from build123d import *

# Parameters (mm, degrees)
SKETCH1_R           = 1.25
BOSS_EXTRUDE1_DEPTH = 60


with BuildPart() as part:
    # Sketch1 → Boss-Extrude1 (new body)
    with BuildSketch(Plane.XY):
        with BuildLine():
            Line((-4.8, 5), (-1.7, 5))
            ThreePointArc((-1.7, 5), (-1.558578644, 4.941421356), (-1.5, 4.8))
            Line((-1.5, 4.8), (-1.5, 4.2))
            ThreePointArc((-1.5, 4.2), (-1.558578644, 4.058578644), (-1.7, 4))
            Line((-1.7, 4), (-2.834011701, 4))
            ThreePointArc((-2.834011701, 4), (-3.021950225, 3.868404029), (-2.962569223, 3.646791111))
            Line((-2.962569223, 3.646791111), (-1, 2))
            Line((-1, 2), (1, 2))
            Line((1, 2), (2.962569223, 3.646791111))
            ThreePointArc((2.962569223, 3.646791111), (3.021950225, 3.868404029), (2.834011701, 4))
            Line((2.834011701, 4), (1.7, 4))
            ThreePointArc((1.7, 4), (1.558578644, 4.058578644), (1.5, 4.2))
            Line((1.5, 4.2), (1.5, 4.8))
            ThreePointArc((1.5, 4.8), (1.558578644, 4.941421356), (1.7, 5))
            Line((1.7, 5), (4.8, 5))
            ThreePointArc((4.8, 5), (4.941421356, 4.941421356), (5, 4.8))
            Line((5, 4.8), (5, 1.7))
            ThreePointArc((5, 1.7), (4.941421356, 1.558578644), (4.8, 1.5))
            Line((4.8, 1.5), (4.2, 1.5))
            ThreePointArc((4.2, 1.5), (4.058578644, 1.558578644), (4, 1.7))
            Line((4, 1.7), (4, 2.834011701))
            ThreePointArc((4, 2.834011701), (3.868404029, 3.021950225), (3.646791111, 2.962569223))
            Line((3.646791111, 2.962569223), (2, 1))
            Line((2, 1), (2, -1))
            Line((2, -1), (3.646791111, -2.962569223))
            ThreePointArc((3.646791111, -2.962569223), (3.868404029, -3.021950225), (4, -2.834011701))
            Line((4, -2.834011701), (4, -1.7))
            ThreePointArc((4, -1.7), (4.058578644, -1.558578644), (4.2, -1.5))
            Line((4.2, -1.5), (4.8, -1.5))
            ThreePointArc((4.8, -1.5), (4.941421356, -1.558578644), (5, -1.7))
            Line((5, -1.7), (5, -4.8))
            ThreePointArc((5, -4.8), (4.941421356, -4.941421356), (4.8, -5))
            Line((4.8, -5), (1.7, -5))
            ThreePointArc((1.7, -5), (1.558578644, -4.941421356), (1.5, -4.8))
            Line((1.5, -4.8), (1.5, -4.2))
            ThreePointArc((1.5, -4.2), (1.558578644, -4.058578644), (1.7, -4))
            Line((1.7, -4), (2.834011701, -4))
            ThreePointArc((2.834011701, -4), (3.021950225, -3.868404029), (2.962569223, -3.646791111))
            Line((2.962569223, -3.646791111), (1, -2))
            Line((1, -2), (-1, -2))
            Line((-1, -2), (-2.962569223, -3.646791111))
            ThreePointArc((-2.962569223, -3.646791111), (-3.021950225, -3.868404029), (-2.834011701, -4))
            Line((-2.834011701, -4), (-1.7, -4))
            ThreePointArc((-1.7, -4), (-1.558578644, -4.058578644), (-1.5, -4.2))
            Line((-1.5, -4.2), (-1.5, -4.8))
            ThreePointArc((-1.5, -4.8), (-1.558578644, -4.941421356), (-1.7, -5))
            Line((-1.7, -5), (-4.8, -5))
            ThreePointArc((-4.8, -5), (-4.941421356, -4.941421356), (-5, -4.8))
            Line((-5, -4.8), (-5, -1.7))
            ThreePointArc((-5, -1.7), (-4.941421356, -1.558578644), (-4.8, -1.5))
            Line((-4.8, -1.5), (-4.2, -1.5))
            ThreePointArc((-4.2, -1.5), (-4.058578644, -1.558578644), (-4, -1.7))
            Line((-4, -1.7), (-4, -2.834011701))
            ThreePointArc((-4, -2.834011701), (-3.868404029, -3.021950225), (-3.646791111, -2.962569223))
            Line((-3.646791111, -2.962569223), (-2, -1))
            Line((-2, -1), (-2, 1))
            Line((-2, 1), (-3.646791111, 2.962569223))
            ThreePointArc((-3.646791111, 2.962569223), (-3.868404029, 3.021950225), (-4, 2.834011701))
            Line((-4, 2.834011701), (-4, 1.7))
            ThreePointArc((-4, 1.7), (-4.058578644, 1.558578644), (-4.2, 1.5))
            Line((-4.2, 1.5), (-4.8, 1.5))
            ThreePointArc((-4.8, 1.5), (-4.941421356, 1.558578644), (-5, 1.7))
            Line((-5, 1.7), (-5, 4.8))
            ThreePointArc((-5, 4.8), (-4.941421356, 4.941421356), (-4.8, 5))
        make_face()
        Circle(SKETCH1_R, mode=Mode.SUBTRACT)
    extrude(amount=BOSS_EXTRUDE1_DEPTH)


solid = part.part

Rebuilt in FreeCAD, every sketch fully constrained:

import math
import FreeCAD as App
import Part
import Sketcher
from FreeCAD import Vector
Q = App.Units.Quantity

doc = App.newDocument("Part")
body = doc.addObject("PartDesign::Body", "Body")

# Sketch on XY plane
sketch1 = body.newObject("Sketcher::SketchObject", "Sketch")
sketch1.AttachmentSupport = (doc.getObject("XY_Plane"), [""])
sketch1.MapMode = "FlatFace"
sketch1.addGeometry([
    Part.LineSegment(Vector(-1.7, 5, 0), Vector(-4.8, 5, 0)),  # 0
    Part.ArcOfCircle(Part.Circle(Vector(-4.8, 4.8, 0), Vector(0, 0, 1), 0.2), math.radians(90), math.radians(180)),  # 1
    Part.LineSegment(Vector(-5, 4.8, 0), Vector(-5, 1.7, 0)),  # 2
    Part.ArcOfCircle(Part.Circle(Vector(-4.8, 1.7, 0), Vector(0, 0, 1), 0.2), math.radians(-180), math.radians(-90)),  # 3
    Part.LineSegment(Vector(-4.8, 1.5, 0), Vector(-4.2, 1.5, 0)),  # 4
    Part.ArcOfCircle(Part.Circle(Vector(-4.2, 1.7, 0), Vector(0, 0, 1), 0.2), math.radians(-90), math.radians(0)),  # 5
    Part.LineSegment(Vector(-4, 1.7, 0), Vector(-4, 2.83, 0)),  # 6
    Part.ArcOfCircle(Part.Circle(Vector(-3.8, 2.83, 0), Vector(0, 0, 1), 0.2), math.radians(40), math.radians(180)),  # 7
    Part.LineSegment(Vector(-3.65, 2.96, 0), Vector(-2, 1, 0)),  # 8
    Part.LineSegment(Vector(-2, 1, 0), Vector(-2, -1, 0)),  # 9
    Part.LineSegment(Vector(-2, -1, 0), Vector(-3.65, -2.96, 0)),  # 10
    Part.ArcOfCircle(Part.Circle(Vector(-3.8, -2.83, 0), Vector(0, 0, 1), 0.2), math.radians(180), math.radians(320)),  # 11
    Part.LineSegment(Vector(-4, -2.83, 0), Vector(-4, -1.7, 0)),  # 12
    Part.ArcOfCircle(Part.Circle(Vector(-4.2, -1.7, 0), Vector(0, 0, 1), 0.2), math.radians(0), math.radians(90)),  # 13
    Part.LineSegment(Vector(-4.2, -1.5, 0), Vector(-4.8, -1.5, 0)),  # 14
    Part.ArcOfCircle(Part.Circle(Vector(-4.8, -1.7, 0), Vector(0, 0, 1), 0.2), math.radians(90), math.radians(180)),  # 15
    Part.LineSegment(Vector(-5, -1.7, 0), Vector(-5, -4.8, 0)),  # 16
    Part.ArcOfCircle(Part.Circle(Vector(-4.8, -4.8, 0), Vector(0, 0, 1), 0.2), math.radians(-180), math.radians(-90)),  # 17
    Part.LineSegment(Vector(-4.8, -5, 0), Vector(-1.7, -5, 0)),  # 18
    Part.ArcOfCircle(Part.Circle(Vector(-1.7, -4.8, 0), Vector(0, 0, 1), 0.2), math.radians(-90), math.radians(0)),  # 19
    Part.LineSegment(Vector(-1.5, -4.8, 0), Vector(-1.5, -4.2, 0)),  # 20
    Part.ArcOfCircle(Part.Circle(Vector(-1.7, -4.2, 0), Vector(0, 0, 1), 0.2), math.radians(0), math.radians(90)),  # 21
    Part.LineSegment(Vector(-1.7, -4, 0), Vector(-2.83, -4, 0)),  # 22
    Part.ArcOfCircle(Part.Circle(Vector(-2.83, -3.8, 0), Vector(0, 0, 1), 0.2), math.radians(130), math.radians(270)),  # 23
    Part.LineSegment(Vector(-2.96, -3.65, 0), Vector(-1, -2, 0)),  # 24
    Part.LineSegment(Vector(-1, -2, 0), Vector(1, -2, 0)),  # 25
    Part.LineSegment(Vector(1, -2, 0), Vector(2.96, -3.65, 0)),  # 26
    Part.ArcOfCircle(Part.Circle(Vector(2.83, -3.8, 0), Vector(0, 0, 1), 0.2), math.radians(-90), math.radians(50)),  # 27
    Part.LineSegment(Vector(2.83, -4, 0), Vector(1.7, -4, 0)),  # 28
    Part.ArcOfCircle(Part.Circle(Vector(1.7, -4.2, 0), Vector(0, 0, 1), 0.2), math.radians(90), math.radians(180)),  # 29
    Part.LineSegment(Vector(1.5, -4.2, 0), Vector(1.5, -4.8, 0)),  # 30
    Part.ArcOfCircle(Part.Circle(Vector(1.7, -4.8, 0), Vector(0, 0, 1), 0.2), math.radians(-180), math.radians(-90)),  # 31
    Part.LineSegment(Vector(1.7, -5, 0), Vector(4.8, -5, 0)),  # 32
    Part.ArcOfCircle(Part.Circle(Vector(4.8, -4.8, 0), Vector(0, 0, 1), 0.2), math.radians(-90), math.radians(0)),  # 33
    Part.LineSegment(Vector(5, -4.8, 0), Vector(5, -1.7, 0)),  # 34
    Part.ArcOfCircle(Part.Circle(Vector(4.8, -1.7, 0), Vector(0, 0, 1), 0.2), math.radians(0), math.radians(90)),  # 35
    Part.LineSegment(Vector(4.8, -1.5, 0), Vector(4.2, -1.5, 0)),  # 36
    Part.ArcOfCircle(Part.Circle(Vector(4.2, -1.7, 0), Vector(0, 0, 1), 0.2), math.radians(90), math.radians(180)),  # 37
    Part.LineSegment(Vector(4, -1.7, 0), Vector(4, -2.83, 0)),  # 38
    Part.ArcOfCircle(Part.Circle(Vector(3.8, -2.83, 0), Vector(0, 0, 1), 0.2), math.radians(-140), math.radians(0)),  # 39
    Part.LineSegment(Vector(3.65, -2.96, 0), Vector(2, -1, 0)),  # 40
    Part.LineSegment(Vector(2, -1, 0), Vector(2, 1, 0)),  # 41
    Part.LineSegment(Vector(2, 1, 0), Vector(3.65, 2.96, 0)),  # 42
    Part.ArcOfCircle(Part.Circle(Vector(3.8, 2.83, 0), Vector(0, 0, 1), 0.2), math.radians(0), math.radians(140)),  # 43
    Part.LineSegment(Vector(4, 2.83, 0), Vector(4, 1.7, 0)),  # 44
    Part.ArcOfCircle(Part.Circle(Vector(4.2, 1.7, 0), Vector(0, 0, 1), 0.2), math.radians(-180), math.radians(-90)),  # 45
    Part.LineSegment(Vector(4.2, 1.5, 0), Vector(4.8, 1.5, 0)),  # 46
    Part.ArcOfCircle(Part.Circle(Vector(4.8, 1.7, 0), Vector(0, 0, 1), 0.2), math.radians(-90), math.radians(0)),  # 47
    Part.LineSegment(Vector(5, 1.7, 0), Vector(5, 4.8, 0)),  # 48
    Part.ArcOfCircle(Part.Circle(Vector(4.8, 4.8, 0), Vector(0, 0, 1), 0.2), math.radians(0), math.radians(90)),  # 49
    Part.LineSegment(Vector(4.8, 5, 0), Vector(1.7, 5, 0)),  # 50
    Part.ArcOfCircle(Part.Circle(Vector(1.7, 4.8, 0), Vector(0, 0, 1), 0.2), math.radians(90), math.radians(180)),  # 51
    Part.LineSegment(Vector(1.5, 4.8, 0), Vector(1.5, 4.2, 0)),  # 52
    Part.ArcOfCircle(Part.Circle(Vector(1.7, 4.2, 0), Vector(0, 0, 1), 0.2), math.radians(-180), math.radians(-90)),  # 53
    Part.LineSegment(Vector(1.7, 4, 0), Vector(2.83, 4, 0)),  # 54
    Part.ArcOfCircle(Part.Circle(Vector(2.83, 3.8, 0), Vector(0, 0, 1), 0.2), math.radians(-50), math.radians(90)),  # 55
    Part.LineSegment(Vector(2.96, 3.65, 0), Vector(1, 2, 0)),  # 56
    Part.LineSegment(Vector(1, 2, 0), Vector(-1, 2, 0)),  # 57
    Part.LineSegment(Vector(-1, 2, 0), Vector(-2.96, 3.65, 0)),  # 58
    Part.ArcOfCircle(Part.Circle(Vector(-2.83, 3.8, 0), Vector(0, 0, 1), 0.2), math.radians(90), math.radians(230)),  # 59
    Part.LineSegment(Vector(-2.83, 4, 0), Vector(-1.7, 4, 0)),  # 60
    Part.ArcOfCircle(Part.Circle(Vector(-1.7, 4.2, 0), Vector(0, 0, 1), 0.2), math.radians(-90), math.radians(0)),  # 61
    Part.LineSegment(Vector(-1.5, 4.2, 0), Vector(-1.5, 4.8, 0)),  # 62
    Part.ArcOfCircle(Part.Circle(Vector(-1.7, 4.8, 0), Vector(0, 0, 1), 0.2), math.radians(0), math.radians(90)),  # 63
    Part.Circle(Vector(0, 0, 0), Vector(0, 0, 1), 1.25),  # 64
], False)
sketch1.addConstraint([
    Sketcher.Constraint("Tangent", 0, 2, 1, 1),
    Sketcher.Constraint("Tangent", 1, 2, 2, 1),
    Sketcher.Constraint("Tangent", 2, 2, 3, 1),
    Sketcher.Constraint("Tangent", 3, 2, 4, 1),
    Sketcher.Constraint("Tangent", 4, 2, 5, 1),
    Sketcher.Constraint("Tangent", 5, 2, 6, 1),
    Sketcher.Constraint("Tangent", 6, 2, 7, 2),
    Sketcher.Constraint("Tangent", 7, 1, 8, 1),
    Sketcher.Constraint("Coincident", 8, 2, 9, 1),
    Sketcher.Constraint("Coincident", 9, 2, 10, 1),
    Sketcher.Constraint("Tangent", 10, 2, 11, 2),
    Sketcher.Constraint("Tangent", 11, 1, 12, 1),
    Sketcher.Constraint("Tangent", 12, 2, 13, 1),
    Sketcher.Constraint("Tangent", 13, 2, 14, 1),
    Sketcher.Constraint("Tangent", 14, 2, 15, 1),
    Sketcher.Constraint("Tangent", 15, 2, 16, 1),
    Sketcher.Constraint("Tangent", 16, 2, 17, 1),
    Sketcher.Constraint("Tangent", 17, 2, 18, 1),
    Sketcher.Constraint("Tangent", 18, 2, 19, 1),
    Sketcher.Constraint("Tangent", 19, 2, 20, 1),
    Sketcher.Constraint("Tangent", 20, 2, 21, 1),
    Sketcher.Constraint("Tangent", 21, 2, 22, 1),
    Sketcher.Constraint("Tangent", 22, 2, 23, 2),
    Sketcher.Constraint("Tangent", 23, 1, 24, 1),
    Sketcher.Constraint("Coincident", 24, 2, 25, 1),
    Sketcher.Constraint("Coincident", 25, 2, 26, 1),
    Sketcher.Constraint("Tangent", 26, 2, 27, 2),
    Sketcher.Constraint("Tangent", 27, 1, 28, 1),
    Sketcher.Constraint("Tangent", 28, 2, 29, 1),
    Sketcher.Constraint("Tangent", 29, 2, 30, 1),
    Sketcher.Constraint("Tangent", 30, 2, 31, 1),
    Sketcher.Constraint("Tangent", 31, 2, 32, 1),
    Sketcher.Constraint("Tangent", 32, 2, 33, 1),
    Sketcher.Constraint("Tangent", 33, 2, 34, 1),
    Sketcher.Constraint("Tangent", 34, 2, 35, 1),
    Sketcher.Constraint("Tangent", 35, 2, 36, 1),
    Sketcher.Constraint("Tangent", 36, 2, 37, 1),
    Sketcher.Constraint("Tangent", 37, 2, 38, 1),
    Sketcher.Constraint("Tangent", 38, 2, 39, 2),
    Sketcher.Constraint("Tangent", 39, 1, 40, 1),
    Sketcher.Constraint("Coincident", 40, 2, 41, 1),
    Sketcher.Constraint("Coincident", 41, 2, 42, 1),
    Sketcher.Constraint("Tangent", 42, 2, 43, 2),
    Sketcher.Constraint("Tangent", 43, 1, 44, 1),
    Sketcher.Constraint("Tangent", 44, 2, 45, 1),
    Sketcher.Constraint("Tangent", 45, 2, 46, 1),
    Sketcher.Constraint("Tangent", 46, 2, 47, 1),
    Sketcher.Constraint("Tangent", 47, 2, 48, 1),
    Sketcher.Constraint("Tangent", 48, 2, 49, 1),
    Sketcher.Constraint("Tangent", 49, 2, 50, 1),
    Sketcher.Constraint("Tangent", 50, 2, 51, 1),
    Sketcher.Constraint("Tangent", 51, 2, 52, 1),
    Sketcher.Constraint("Tangent", 52, 2, 53, 1),
    Sketcher.Constraint("Tangent", 53, 2, 54, 1),
    Sketcher.Constraint("Tangent", 54, 2, 55, 2),
    Sketcher.Constraint("Tangent", 55, 1, 56, 1),
    Sketcher.Constraint("Coincident", 56, 2, 57, 1),
    Sketcher.Constraint("Coincident", 57, 2, 58, 1),
    Sketcher.Constraint("Tangent", 58, 2, 59, 2),
    Sketcher.Constraint("Tangent", 59, 1, 60, 1),
    Sketcher.Constraint("Tangent", 60, 2, 61, 1),
    Sketcher.Constraint("Tangent", 61, 2, 62, 1),
    Sketcher.Constraint("Tangent", 62, 2, 63, 1),
    Sketcher.Constraint("Tangent", 63, 2, 0, 1),
    Sketcher.Constraint("Horizontal", 0),
    Sketcher.Constraint("Vertical", 2),
    Sketcher.Constraint("Horizontal", 4),
    Sketcher.Constraint("Vertical", 6),
    Sketcher.Constraint("Vertical", 9),
    Sketcher.Constraint("Vertical", 12),
    Sketcher.Constraint("Horizontal", 14),
    Sketcher.Constraint("Vertical", 16),
    Sketcher.Constraint("Horizontal", 18),
    Sketcher.Constraint("Vertical", 20),
    Sketcher.Constraint("Horizontal", 22),
    Sketcher.Constraint("Horizontal", 25),
    Sketcher.Constraint("Horizontal", 28),
    Sketcher.Constraint("Vertical", 30),
    Sketcher.Constraint("Horizontal", 32),
    Sketcher.Constraint("Vertical", 34),
    Sketcher.Constraint("Horizontal", 36),
    Sketcher.Constraint("Vertical", 38),
    Sketcher.Constraint("Vertical", 41),
    Sketcher.Constraint("Vertical", 44),
    Sketcher.Constraint("Horizontal", 46),
    Sketcher.Constraint("Vertical", 48),
    Sketcher.Constraint("Horizontal", 50),
    Sketcher.Constraint("Vertical", 52),
    Sketcher.Constraint("Horizontal", 54),
    Sketcher.Constraint("Horizontal", 57),
    Sketcher.Constraint("Horizontal", 60),
    Sketcher.Constraint("Vertical", 62),
    Sketcher.Constraint("Coincident", 64, 3, -1, 1),
    Sketcher.Constraint("Equal", 1, 3),
    Sketcher.Constraint("Equal", 3, 5),
    Sketcher.Constraint("Equal", 5, 7),
    Sketcher.Constraint("Equal", 7, 11),
    Sketcher.Constraint("Equal", 11, 13),
    Sketcher.Constraint("Equal", 13, 15),
    Sketcher.Constraint("Equal", 15, 17),
    Sketcher.Constraint("Equal", 17, 19),
    Sketcher.Constraint("Equal", 19, 21),
    Sketcher.Constraint("Equal", 21, 23),
    Sketcher.Constraint("Equal", 23, 27),
    Sketcher.Constraint("Equal", 27, 29),
    Sketcher.Constraint("Equal", 29, 31),
    Sketcher.Constraint("Equal", 31, 33),
    Sketcher.Constraint("Equal", 33, 35),
    Sketcher.Constraint("Equal", 35, 37),
    Sketcher.Constraint("Equal", 37, 39),
    Sketcher.Constraint("Equal", 39, 43),
    Sketcher.Constraint("Equal", 43, 45),
    Sketcher.Constraint("Equal", 45, 47),
    Sketcher.Constraint("Equal", 47, 49),
    Sketcher.Constraint("Equal", 49, 51),
    Sketcher.Constraint("Equal", 51, 53),
    Sketcher.Constraint("Equal", 53, 55),
    Sketcher.Constraint("Equal", 55, 59),
    Sketcher.Constraint("Equal", 59, 61),
    Sketcher.Constraint("Equal", 61, 63),
    Sketcher.Constraint("Symmetric", 1, 3, 33, 3, -1, 1),
    Sketcher.Constraint("Symmetric", 5, 3, 37, 3, -1, 1),
    Sketcher.Constraint("Symmetric", 11, 3, 43, 3, -1, 1),
    Sketcher.Constraint("Symmetric", 15, 3, 47, 3, -1, 1),
    Sketcher.Constraint("Symmetric", 19, 3, 51, 3, -1, 1),
    Sketcher.Constraint("Symmetric", 23, 3, 55, 3, -1, 1),
    Sketcher.Constraint("Symmetric", 27, 3, 59, 3, -1, 1),
    Sketcher.Constraint("Symmetric", 7, 1, 39, 1, -1, 1),
    Sketcher.Constraint("Symmetric", 9, 2, 41, 2, -1, 1),
    Sketcher.Constraint("Symmetric", 24, 2, 56, 2, -1, 1),
    Sketcher.Constraint("Symmetric", 23, 3, 27, 3, -2),
    Sketcher.Constraint("Symmetric", 19, 3, 31, 3, -2),
    Sketcher.Constraint("Symmetric", 15, 3, 35, 3, -2),
    Sketcher.Constraint("Symmetric", 11, 3, 39, 3, -2),
    Sketcher.Constraint("Perpendicular", 8, 24),
    Sketcher.Constraint("Perpendicular", 10, 26),
    Sketcher.Constraint("Perpendicular", 42, 58),
    Sketcher.Constraint("Horizontal", 23, 1, 26, 2),
    Sketcher.Constraint("Vertical", 21, 3, 61, 3),
    Sketcher.Constraint("Equal", 50, 2),
    Sketcher.Constraint("Equal", 60, 6),
    Sketcher.Constraint("Equal", 57, 9),
    Sketcher.Constraint("Equal", 46, 20),
    Sketcher.Constraint("Equal", 10, 24),
    Sketcher.Constraint("Diameter", 64, 2.5),
    Sketcher.Constraint("Radius", 1, 0.2),
    Sketcher.Constraint("DistanceX", 25, 1, 25, 2, 2.0),
    Sketcher.Constraint("Angle", 8, Q("-50 deg")),
    Sketcher.Constraint("DistanceX", 0, 2, 0, 1, 3.1),
    Sketcher.Constraint("DistanceX", 4, 1, 4, 2, 0.6),
    Sketcher.Constraint("DistanceY", -1, 1, 0, 2, 5.0),
    Sketcher.Constraint("DistanceX", 8, 2, -1, 1, 2.0),
])
pad1 = body.newObject("PartDesign::Pad", "Pad")
pad1.Profile = sketch1
pad1.Length = 60

doc.recompute()
